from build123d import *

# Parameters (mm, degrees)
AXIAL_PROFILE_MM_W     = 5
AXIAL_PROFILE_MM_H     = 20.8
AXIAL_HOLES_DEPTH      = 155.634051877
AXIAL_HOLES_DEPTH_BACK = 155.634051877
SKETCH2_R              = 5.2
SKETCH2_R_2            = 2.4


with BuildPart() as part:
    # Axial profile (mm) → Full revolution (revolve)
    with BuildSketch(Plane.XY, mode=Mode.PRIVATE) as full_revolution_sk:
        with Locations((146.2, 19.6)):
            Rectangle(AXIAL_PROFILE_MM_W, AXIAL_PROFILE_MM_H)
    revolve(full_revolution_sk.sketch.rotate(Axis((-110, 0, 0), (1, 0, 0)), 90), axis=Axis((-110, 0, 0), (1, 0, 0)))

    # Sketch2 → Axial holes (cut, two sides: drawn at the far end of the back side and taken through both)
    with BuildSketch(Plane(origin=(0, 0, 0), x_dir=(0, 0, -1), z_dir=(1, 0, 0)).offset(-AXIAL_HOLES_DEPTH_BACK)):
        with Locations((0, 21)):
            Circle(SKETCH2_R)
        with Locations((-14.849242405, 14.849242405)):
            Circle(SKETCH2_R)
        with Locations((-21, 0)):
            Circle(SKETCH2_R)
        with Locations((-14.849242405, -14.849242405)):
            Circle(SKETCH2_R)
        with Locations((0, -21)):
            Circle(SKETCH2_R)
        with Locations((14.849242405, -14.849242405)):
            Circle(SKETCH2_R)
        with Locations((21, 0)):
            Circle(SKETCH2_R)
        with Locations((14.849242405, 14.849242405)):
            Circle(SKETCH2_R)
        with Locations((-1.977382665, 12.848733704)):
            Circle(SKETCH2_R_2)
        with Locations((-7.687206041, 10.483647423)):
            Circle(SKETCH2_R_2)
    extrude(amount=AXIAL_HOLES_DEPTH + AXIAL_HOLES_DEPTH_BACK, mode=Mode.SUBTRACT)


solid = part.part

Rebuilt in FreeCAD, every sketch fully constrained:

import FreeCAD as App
import Part
import Sketcher

doc = App.newDocument("Part")
body = doc.addObject("PartDesign::Body", "Body")

sketch1 = body.newObject("Sketcher::SketchObject", "Sketch")
sketch1.AttachmentSupport = (doc.getObject("XY_Plane"), [""])
sketch1.MapMode = "FlatFace"
sketch1.addGeometry([
    Part.LineSegment(App.Vector(144, 30, 0), App.Vector(144, 9, 0)),
    Part.LineSegment(App.Vector(144, 9, 0), App.Vector(149, 9, 0)),
    Part.LineSegment(App.Vector(149, 9, 0), App.Vector(149, 30, 0)),
    Part.LineSegment(App.Vector(149, 30, 0), App.Vector(144, 30, 0)),
], False)
sketch1.addConstraint([
    Sketcher.Constraint("Coincident", 0, 2, 1, 1),
    Sketcher.Constraint("Coincident", 1, 2, 2, 1),
    Sketcher.Constraint("Coincident", 2, 2, 3, 1),
    Sketcher.Constraint("Coincident", 3, 2, 0, 1),
    Sketcher.Constraint("Vertical", 0),
    Sketcher.Constraint("Horizontal", 1),
    Sketcher.Constraint("Vertical", 2),
    Sketcher.Constraint("Horizontal", 3),
    Sketcher.Constraint("DistanceX", 1, 1, 1, 2, 5.0),
    Sketcher.Constraint("DistanceY", 0, 2, 0, 1, 20.8),
    Sketcher.Constraint("DistanceY", -1, 1, 2, 2, 30.0),
    Sketcher.Constraint("DistanceX", -1, 1, 0, 2, 143.7),
])
revolution = body.newObject("PartDesign::Revolution", "Revolution")
revolution.Profile = sketch1
revolution.ReferenceAxis = (sketch1, ["H_Axis"])
revolution.Angle = 360

sketch2 = body.newObject("Sketcher::SketchObject", "Sketch001")
sketch2.AttachmentSupport = (doc.getObject("YZ_Plane"), [""])
sketch2.MapMode = "FlatFace"
sketch2.addGeometry([
    Part.Circle(App.Vector(21, 0, 0), App.Vector(0, 0, 1), 5.2),
    Part.Circle(App.Vector(14.8, 14.8, 0), App.Vector(0, 0, 1), 5.2),
    Part.Circle(App.Vector(0, 21, 0), App.Vector(0, 0, 1), 5.2),
    Part.Circle(App.Vector(-14.8, 14.8, 0), App.Vector(0, 0, 1), 5.2),
    Part.Circle(App.Vector(-21, 0, 0), App.Vector(0, 0, 1), 5.2),
    Part.Circle(App.Vector(-14.8, -14.8, 0), App.Vector(0, 0, 1), 5.2),
    Part.Circle(App.Vector(0, -21, 0), App.Vector(0, 0, 1), 5.2),
    Part.Circle(App.Vector(14.8, -14.8, 0), App.Vector(0, 0, 1), 5.2),
    Part.Circle(App.Vector(12.8, 2, 0), App.Vector(0, 0, 1), 2.4),
    Part.Circle(App.Vector(10.5, 7.7, 0), App.Vector(0, 0, 1), 2.4),
], False)
sketch2.addConstraint([
    Sketcher.Constraint("Equal", 0, 1),
    Sketcher.Constraint("Equal", 1, 2),
    Sketcher.Constraint("Equal", 2, 3),
    Sketcher.Constraint("Equal", 3, 4),
    Sketcher.Constraint("Equal", 4, 5),
    Sketcher.Constraint("Equal", 5, 6),
    Sketcher.Constraint("Equal", 6, 7),
    Sketcher.Constraint("Equal", 8, 9),
    Sketcher.Constraint("Symmetric", 0, 3, 4, 3, -1, 1),
    Sketcher.Constraint("Symmetric", 1, 3, 5, 3, -1, 1),
    Sketcher.Constraint("Symmetric", 2, 3, 6, 3, -1, 1),
    Sketcher.Constraint("Symmetric", 3, 3, 7, 3, -1, 1),
    Sketcher.Constraint("Symmetric", 1, 3, 3, 3, -2),
    Sketcher.Constraint("PointOnObject", 0, 3, -1),
    Sketcher.Constraint("PointOnObject", 2, 3, -2),
    Sketcher.Constraint("Diameter", 0, 10.4),
    Sketcher.Constraint("Diameter", 8, 4.8),
    Sketcher.Constraint("DistanceX", -1, 1, 0, 3, 21.0),
    Sketcher.Constraint("DistanceY", -1, 1, 2, 3, 21.0),
    Sketcher.Constraint("DistanceX", 8, 3, 1, 3, 2.000509),
    Sketcher.Constraint("DistanceY", 8, 3, 1, 3, 12.87186),
    Sketcher.Constraint("DistanceY", 7, 3, 9, 3, 22.536448),
    Sketcher.Constraint("DistanceX", -1, 1, 1, 3, 14.849242),
    Sketcher.Constraint("DistanceY", -1, 1, 1, 3, 14.849242),
    Sketcher.Constraint("DistanceX", -1, 1, 9, 3, 10.483647),
])
pocket1 = body.newObject("PartDesign::Pocket", "Pocket")
pocket1.Profile = sketch2
pocket1.Type = "ThroughAll"
pocket1.Midplane = True

doc.recompute()
